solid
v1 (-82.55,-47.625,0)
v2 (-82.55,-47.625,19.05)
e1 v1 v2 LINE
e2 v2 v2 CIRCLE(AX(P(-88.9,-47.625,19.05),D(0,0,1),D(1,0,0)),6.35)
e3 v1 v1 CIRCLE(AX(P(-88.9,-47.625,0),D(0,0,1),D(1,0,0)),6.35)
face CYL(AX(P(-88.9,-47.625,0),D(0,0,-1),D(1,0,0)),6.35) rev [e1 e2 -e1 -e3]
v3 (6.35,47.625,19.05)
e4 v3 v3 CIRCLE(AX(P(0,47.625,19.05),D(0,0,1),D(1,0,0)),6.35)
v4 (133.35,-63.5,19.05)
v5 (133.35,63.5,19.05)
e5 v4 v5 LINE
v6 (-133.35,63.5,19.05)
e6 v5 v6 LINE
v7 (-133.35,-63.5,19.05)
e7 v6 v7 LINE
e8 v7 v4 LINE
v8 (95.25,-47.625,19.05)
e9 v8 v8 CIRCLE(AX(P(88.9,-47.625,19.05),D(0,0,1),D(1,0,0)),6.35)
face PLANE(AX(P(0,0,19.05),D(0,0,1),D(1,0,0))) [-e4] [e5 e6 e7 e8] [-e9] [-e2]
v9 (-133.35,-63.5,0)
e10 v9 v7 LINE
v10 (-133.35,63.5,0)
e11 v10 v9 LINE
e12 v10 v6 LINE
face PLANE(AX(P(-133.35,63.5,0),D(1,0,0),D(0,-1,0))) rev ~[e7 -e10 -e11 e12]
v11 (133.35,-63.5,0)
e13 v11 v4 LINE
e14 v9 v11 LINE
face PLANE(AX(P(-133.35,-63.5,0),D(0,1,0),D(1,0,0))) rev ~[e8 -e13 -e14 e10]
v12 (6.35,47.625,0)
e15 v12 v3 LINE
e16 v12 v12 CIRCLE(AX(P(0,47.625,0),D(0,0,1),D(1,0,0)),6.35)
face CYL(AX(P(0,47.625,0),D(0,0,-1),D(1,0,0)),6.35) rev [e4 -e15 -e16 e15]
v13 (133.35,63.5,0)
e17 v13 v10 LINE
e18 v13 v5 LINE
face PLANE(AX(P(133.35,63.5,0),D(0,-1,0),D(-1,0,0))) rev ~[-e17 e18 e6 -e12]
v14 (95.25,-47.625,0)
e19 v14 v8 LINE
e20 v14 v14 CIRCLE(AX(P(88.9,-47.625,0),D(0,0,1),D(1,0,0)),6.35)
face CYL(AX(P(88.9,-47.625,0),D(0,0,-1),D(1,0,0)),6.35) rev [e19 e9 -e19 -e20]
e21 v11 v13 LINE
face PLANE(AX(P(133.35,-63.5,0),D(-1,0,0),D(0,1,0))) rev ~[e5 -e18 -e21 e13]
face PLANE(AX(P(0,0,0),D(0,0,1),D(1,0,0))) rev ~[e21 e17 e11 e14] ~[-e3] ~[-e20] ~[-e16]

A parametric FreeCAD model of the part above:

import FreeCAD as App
import Part
import Sketcher
from FreeCAD import Vector
Q = App.Units.Quantity


def add_polygon(sketch, points):
    """Adds a closed chain of lines whose ends are joined by coincident constraints."""
    first, n = sketch.GeometryCount, len(points)
    for a, b in zip(points, points[1:] + points[:1]):
        sketch.addGeometry(Part.LineSegment(App.Vector(*a, 0), App.Vector(*b, 0)), False)
    for i in range(n):
        sketch.addConstraint(Sketcher.Constraint("Coincident", first + i, 2, first + (i + 1) % n, 1))

doc = App.newDocument("Part")
body = doc.addObject("PartDesign::Body", "Body")

# Sketch on XY plane
sketch1 = body.newObject("Sketcher::SketchObject", "Sketch")
sketch1.AttachmentSupport = (doc.getObject("XY_Plane"), [""])
sketch1.MapMode = "FlatFace"
add_polygon(sketch1, [(-133, 64), (-133, -64), (133, -64), (133, 64)])  # lines 0-3
sketch1.addGeometry(Part.Circle(Vector(-89, -48, 0), Vector(0, 0, 1), 6), False)  # 4
sketch1.addGeometry(Part.Circle(Vector(89, -48, 0), Vector(0, 0, 1), 6), False)  # 5
sketch1.addGeometry(Part.Circle(Vector(0, 48, 0), Vector(0, 0, 1), 6), False)  # 6
sketch1.addConstraint([
    Sketcher.Constraint("Vertical", 0),
    Sketcher.Constraint("Horizontal", 1),
    Sketcher.Constraint("Vertical", 2),
    Sketcher.Constraint("Horizontal", 3),
    Sketcher.Constraint("Equal", 4, 5),
    Sketcher.Constraint("Equal", 5, 6),
    Sketcher.Constraint("Symmetric", 0, 2, 2, 2, -1, 1),
    Sketcher.Constraint("Symmetric", 4, 3, 5, 3, -2),
    Sketcher.Constraint("PointOnObject", 6, 3, -2),
    Sketcher.Constraint("Diameter", 4, Q("0.5 in")),
    Sketcher.Constraint("DistanceY", 0, 2, 0, 1, Q("5 in")),
    Sketcher.Constraint("DistanceX", 1, 1, 1, 2, Q("10.5 in")),
    Sketcher.Constraint("DistanceX", 4, 3, 5, 3, Q("7 in")),
    Sketcher.Constraint("DistanceY", 4, 3, -1, 1, Q("1.875 in")),
    Sketcher.Constraint("DistanceY", -1, 1, 6, 3, Q("1.875 in")),
])
pad1 = body.newObject("PartDesign::Pad", "Pad")
pad1.Profile = sketch1
pad1.Length = Q("0.75 in")

doc.recompute()
